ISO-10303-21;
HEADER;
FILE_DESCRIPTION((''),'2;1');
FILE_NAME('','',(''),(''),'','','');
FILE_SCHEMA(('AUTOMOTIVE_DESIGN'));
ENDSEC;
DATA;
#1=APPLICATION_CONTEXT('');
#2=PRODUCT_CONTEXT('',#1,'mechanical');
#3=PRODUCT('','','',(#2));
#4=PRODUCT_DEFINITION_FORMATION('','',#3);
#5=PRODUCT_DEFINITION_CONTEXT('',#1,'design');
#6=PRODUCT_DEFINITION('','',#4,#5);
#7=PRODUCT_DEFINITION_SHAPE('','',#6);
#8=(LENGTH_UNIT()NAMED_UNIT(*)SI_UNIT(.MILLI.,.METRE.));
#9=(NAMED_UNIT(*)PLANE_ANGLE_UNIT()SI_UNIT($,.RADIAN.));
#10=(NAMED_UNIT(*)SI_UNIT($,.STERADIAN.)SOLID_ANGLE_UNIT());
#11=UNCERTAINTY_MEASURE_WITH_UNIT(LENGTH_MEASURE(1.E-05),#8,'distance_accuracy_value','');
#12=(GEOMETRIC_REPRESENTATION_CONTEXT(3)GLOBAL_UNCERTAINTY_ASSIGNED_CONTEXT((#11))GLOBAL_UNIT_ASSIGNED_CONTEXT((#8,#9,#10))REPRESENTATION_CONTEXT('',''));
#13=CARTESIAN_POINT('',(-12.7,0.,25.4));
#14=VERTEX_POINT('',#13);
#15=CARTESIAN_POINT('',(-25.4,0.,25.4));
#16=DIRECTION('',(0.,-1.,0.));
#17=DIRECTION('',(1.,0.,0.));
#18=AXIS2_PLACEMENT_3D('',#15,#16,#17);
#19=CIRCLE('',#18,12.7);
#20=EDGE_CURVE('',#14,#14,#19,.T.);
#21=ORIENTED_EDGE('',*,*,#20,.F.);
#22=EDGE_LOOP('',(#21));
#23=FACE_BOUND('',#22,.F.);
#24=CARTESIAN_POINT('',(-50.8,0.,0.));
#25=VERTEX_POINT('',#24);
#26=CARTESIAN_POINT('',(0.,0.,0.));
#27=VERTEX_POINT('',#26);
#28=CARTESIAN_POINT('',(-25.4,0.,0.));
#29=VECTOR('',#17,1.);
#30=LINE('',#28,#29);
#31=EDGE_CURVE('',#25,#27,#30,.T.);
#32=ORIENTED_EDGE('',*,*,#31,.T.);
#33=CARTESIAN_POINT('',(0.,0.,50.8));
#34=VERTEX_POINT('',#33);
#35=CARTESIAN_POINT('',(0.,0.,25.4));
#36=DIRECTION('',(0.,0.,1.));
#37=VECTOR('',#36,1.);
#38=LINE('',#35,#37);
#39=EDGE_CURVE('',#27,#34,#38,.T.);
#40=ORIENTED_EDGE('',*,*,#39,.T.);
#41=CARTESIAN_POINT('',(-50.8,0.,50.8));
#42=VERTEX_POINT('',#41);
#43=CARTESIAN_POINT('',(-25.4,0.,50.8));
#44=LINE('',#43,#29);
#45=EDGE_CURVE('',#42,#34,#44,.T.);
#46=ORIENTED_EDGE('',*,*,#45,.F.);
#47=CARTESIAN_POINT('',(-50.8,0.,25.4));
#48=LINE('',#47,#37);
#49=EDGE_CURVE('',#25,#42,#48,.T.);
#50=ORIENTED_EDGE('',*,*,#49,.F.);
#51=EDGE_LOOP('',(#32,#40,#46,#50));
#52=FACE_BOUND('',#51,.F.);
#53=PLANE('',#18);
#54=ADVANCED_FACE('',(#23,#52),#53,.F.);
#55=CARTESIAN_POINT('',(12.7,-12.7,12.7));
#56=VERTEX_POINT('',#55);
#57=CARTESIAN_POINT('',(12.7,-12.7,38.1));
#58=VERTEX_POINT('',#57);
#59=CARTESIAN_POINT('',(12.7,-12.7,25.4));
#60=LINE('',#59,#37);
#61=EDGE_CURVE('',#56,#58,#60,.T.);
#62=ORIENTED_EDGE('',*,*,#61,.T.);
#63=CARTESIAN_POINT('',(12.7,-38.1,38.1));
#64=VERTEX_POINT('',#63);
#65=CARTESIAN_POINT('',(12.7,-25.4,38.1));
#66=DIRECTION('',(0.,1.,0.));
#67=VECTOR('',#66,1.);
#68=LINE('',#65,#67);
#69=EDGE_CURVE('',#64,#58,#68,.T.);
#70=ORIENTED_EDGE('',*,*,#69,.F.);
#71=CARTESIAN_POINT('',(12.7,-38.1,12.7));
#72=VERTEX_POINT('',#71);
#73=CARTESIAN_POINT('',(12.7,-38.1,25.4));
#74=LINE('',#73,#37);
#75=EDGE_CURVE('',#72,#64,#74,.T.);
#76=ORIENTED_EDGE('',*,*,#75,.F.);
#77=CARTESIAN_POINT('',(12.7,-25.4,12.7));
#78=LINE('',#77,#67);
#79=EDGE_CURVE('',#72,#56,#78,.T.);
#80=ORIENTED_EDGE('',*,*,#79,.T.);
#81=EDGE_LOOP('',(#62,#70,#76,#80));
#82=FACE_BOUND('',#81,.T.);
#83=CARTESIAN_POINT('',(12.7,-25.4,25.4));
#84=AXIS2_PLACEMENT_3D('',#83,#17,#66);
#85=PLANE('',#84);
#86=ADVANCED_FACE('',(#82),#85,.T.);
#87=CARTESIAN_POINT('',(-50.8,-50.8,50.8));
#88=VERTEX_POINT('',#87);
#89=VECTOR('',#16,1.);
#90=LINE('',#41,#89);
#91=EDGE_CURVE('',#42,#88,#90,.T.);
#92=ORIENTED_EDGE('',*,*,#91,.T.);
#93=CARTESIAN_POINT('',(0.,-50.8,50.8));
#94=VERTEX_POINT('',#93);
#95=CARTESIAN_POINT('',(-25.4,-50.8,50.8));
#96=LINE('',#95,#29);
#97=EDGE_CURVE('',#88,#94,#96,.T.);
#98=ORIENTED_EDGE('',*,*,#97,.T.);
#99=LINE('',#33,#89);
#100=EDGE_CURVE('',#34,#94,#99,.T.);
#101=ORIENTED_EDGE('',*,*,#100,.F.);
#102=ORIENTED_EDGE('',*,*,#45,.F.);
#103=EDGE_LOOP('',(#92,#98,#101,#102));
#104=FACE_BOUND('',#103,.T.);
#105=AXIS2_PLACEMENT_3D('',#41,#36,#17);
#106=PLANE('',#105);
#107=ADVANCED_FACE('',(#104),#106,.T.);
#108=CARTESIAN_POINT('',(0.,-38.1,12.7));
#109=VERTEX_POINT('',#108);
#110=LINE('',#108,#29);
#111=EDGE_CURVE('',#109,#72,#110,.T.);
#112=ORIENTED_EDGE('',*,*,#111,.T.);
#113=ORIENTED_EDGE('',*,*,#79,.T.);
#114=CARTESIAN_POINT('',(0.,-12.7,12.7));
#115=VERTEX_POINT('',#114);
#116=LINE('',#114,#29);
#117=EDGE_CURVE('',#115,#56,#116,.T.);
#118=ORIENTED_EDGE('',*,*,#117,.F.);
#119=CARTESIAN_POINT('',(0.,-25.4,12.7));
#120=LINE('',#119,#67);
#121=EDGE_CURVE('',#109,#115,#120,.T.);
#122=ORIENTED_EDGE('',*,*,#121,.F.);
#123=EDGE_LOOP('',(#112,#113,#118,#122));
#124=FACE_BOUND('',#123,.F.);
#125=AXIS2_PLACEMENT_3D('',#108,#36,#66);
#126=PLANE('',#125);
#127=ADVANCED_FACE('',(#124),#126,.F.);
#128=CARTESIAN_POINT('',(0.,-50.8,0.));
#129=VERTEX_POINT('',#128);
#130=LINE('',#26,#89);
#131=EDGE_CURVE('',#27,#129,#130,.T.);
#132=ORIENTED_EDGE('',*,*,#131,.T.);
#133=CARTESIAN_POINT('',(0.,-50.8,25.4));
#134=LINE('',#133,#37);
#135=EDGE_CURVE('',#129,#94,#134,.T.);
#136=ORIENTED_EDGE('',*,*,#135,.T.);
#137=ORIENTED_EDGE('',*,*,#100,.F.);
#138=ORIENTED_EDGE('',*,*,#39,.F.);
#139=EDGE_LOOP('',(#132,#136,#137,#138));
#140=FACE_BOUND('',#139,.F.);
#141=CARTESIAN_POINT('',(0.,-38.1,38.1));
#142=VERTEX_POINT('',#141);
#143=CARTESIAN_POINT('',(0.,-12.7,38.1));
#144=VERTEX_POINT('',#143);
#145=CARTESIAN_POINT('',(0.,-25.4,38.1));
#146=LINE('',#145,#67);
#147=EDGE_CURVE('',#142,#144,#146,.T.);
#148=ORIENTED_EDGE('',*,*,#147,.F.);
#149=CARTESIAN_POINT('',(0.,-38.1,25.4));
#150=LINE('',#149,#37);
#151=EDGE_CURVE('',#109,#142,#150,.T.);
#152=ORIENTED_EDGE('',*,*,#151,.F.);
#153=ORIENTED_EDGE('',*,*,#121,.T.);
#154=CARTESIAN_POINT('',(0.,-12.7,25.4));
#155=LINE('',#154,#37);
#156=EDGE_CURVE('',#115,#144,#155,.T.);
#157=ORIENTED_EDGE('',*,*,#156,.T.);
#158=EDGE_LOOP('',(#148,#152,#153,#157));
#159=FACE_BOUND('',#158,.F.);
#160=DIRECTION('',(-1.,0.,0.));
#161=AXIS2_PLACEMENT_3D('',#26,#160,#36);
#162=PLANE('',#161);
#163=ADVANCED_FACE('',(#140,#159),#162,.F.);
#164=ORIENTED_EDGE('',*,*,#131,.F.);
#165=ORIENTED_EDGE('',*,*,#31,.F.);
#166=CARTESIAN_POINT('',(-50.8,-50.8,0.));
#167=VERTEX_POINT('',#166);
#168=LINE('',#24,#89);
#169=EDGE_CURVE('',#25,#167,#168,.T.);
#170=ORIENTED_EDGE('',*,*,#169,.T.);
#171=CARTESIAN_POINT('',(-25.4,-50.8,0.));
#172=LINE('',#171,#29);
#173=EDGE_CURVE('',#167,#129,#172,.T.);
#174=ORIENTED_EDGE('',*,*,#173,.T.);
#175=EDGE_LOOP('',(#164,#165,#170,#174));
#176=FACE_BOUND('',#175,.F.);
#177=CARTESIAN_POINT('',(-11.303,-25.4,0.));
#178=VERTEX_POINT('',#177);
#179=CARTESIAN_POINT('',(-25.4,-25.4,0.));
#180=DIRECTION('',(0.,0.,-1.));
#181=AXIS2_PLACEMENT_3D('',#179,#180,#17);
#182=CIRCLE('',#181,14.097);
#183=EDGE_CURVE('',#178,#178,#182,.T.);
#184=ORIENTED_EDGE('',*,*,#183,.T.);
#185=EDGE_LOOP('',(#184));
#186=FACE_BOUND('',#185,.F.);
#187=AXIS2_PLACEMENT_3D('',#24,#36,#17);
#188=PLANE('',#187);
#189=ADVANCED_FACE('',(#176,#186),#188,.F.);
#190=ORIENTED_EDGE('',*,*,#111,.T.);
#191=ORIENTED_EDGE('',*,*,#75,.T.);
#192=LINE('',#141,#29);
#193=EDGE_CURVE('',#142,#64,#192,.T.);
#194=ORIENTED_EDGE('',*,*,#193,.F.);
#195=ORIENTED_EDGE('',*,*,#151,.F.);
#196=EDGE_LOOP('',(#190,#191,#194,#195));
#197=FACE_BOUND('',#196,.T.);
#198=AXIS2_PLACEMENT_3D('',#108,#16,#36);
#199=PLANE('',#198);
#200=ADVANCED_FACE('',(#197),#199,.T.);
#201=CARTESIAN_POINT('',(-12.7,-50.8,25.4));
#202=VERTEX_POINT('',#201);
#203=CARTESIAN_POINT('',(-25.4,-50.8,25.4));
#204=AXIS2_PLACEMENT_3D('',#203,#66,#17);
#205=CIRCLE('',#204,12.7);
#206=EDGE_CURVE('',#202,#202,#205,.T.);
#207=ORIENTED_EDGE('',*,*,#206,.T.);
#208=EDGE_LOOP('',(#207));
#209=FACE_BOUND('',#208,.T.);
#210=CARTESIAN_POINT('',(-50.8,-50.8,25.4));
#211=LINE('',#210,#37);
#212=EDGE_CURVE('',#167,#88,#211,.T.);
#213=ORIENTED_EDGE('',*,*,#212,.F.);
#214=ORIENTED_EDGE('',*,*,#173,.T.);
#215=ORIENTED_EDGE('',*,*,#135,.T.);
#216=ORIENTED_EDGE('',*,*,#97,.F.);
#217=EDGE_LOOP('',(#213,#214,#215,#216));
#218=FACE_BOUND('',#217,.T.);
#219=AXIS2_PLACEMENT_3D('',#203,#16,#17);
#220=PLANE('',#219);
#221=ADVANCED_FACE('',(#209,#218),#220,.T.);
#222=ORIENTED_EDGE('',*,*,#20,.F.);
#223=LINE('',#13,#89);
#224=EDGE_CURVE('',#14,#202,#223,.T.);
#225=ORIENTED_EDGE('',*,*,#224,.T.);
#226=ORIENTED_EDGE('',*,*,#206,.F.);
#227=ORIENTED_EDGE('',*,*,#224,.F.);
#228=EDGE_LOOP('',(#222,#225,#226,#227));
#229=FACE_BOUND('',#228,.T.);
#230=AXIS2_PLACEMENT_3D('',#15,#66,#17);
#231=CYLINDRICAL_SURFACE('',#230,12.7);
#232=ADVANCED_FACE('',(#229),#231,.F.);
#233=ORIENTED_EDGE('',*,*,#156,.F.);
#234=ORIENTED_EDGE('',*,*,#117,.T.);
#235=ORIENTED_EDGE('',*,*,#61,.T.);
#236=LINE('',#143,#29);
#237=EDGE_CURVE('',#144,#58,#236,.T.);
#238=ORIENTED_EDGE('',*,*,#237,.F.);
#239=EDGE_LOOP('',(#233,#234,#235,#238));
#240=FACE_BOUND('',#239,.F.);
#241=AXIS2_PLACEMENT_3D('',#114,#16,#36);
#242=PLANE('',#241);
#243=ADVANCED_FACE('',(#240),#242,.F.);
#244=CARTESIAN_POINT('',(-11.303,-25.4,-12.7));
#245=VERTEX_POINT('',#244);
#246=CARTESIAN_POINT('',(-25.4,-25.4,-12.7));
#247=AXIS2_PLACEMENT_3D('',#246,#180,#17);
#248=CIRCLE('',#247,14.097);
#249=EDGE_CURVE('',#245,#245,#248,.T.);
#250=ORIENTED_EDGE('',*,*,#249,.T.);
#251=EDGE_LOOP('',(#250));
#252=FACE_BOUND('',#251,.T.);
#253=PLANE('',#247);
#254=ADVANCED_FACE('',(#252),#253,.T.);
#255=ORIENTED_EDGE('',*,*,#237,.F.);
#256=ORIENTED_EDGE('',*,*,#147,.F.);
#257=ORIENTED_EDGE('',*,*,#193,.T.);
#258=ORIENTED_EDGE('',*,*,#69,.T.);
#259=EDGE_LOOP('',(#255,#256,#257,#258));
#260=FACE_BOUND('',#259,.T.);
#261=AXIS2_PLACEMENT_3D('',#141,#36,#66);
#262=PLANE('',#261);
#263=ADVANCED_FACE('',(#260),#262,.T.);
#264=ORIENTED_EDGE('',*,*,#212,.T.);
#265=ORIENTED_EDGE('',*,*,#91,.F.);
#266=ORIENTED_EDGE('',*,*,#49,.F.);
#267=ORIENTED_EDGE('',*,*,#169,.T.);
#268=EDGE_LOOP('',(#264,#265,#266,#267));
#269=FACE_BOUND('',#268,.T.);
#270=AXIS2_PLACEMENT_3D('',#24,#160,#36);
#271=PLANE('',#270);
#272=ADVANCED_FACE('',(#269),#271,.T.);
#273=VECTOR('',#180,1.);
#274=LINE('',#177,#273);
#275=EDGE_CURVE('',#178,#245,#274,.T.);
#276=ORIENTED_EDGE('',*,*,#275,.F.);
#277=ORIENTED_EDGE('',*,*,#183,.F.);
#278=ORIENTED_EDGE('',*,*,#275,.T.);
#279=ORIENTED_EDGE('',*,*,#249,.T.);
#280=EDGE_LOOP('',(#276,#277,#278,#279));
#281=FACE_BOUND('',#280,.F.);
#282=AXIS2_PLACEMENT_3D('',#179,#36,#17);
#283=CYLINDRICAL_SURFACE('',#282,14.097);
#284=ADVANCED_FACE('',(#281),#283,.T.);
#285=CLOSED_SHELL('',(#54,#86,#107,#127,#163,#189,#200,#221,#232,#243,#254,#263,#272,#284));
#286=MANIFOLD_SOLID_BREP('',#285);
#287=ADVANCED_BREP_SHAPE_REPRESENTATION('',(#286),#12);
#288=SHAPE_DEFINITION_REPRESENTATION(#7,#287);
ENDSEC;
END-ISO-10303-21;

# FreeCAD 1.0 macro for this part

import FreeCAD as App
import Part
import Sketcher
from FreeCAD import Vector
Q = App.Units.Quantity


def add_polygon(sketch, points):
    """Adds a closed chain of lines whose ends are joined by coincident constraints."""
    first, n = sketch.GeometryCount, len(points)
    for a, b in zip(points, points[1:] + points[:1]):
        sketch.addGeometry(Part.LineSegment(App.Vector(*a, 0), App.Vector(*b, 0)), False)
    for i in range(n):
        sketch.addConstraint(Sketcher.Constraint("Coincident", first + i, 2, first + (i + 1) % n, 1))

doc = App.newDocument("Part")
body = doc.addObject("PartDesign::Body", "Body")

sketch1 = body.newObject("Sketcher::SketchObject", "Sketch")
sketch1.AttachmentSupport = (doc.getObject("XZ_Plane"), [""])
sketch1.MapMode = "FlatFace"
add_polygon(sketch1, [(-50.8, 50.8), (-50.8, 0), (0, 0), (0, 50.8)])
sketch1.addConstraint(Sketcher.Constraint("Vertical", 0))
sketch1.addConstraint(Sketcher.Constraint("Horizontal", 1))
sketch1.addConstraint(Sketcher.Constraint("Vertical", 2))
sketch1.addConstraint(Sketcher.Constraint("Horizontal", 3))
sketch1.addConstraint(Sketcher.Constraint("Coincident", 1, 2, -1, 1))
sketch1.addConstraint(Sketcher.Constraint("Equal", 3, 0))
sketch1.addConstraint(Sketcher.Constraint("DistanceX", 1, 1, 1, 2, Q("2 in")))
pad1 = body.newObject("PartDesign::Pad", "Pad")
pad1.Profile = sketch1
pad1.Length = Q("2 in")

sketch2 = body.newObject("Sketcher::SketchObject", "Sketch001")
sketch2.AttachmentSupport = (doc.getObject("XZ_Plane"), [""])
sketch2.MapMode = "FlatFace"
sketch2.addGeometry(Part.Circle(Vector(-25.4, 25.4, 0), Vector(0, 0, 1), 12.7), False)
sketch2.addConstraint(Sketcher.Constraint("Diameter", 0, Q("1 in")))
sketch2.addConstraint(Sketcher.Constraint("DistanceX", 0, 3, -1, 1, Q("1 in")))
sketch2.addConstraint(Sketcher.Constraint("DistanceY", -1, 1, 0, 3, Q("1 in")))
pocket1 = body.newObject("PartDesign::Pocket", "Pocket")
pocket1.Profile = sketch2
pocket1.Length = Q("2.02 in")
pocket1.Reversed = True

sketch3 = body.newObject("Sketcher::SketchObject", "Sketch002")
sketch3.AttachmentSupport = (doc.getObject("YZ_Plane"), [""])
sketch3.MapMode = "FlatFace"
add_polygon(sketch3, [(-38.1, 38.1), (-38.1, 12.7), (-12.7, 12.7), (-12.7, 38.1)])
sketch3.addConstraint(Sketcher.Constraint("Vertical", 0))
sketch3.addConstraint(Sketcher.Constraint("Horizontal", 1))
sketch3.addConstraint(Sketcher.Constraint("Vertical", 2))
sketch3.addConstraint(Sketcher.Constraint("Horizontal", 3))
sketch3.addConstraint(Sketcher.Constraint("Equal", 3, 0))
sketch3.addConstraint(Sketcher.Constraint("DistanceX", 1, 1, 1, 2, Q("1 in")))
sketch3.addConstraint(Sketcher.Constraint("DistanceX", 0, 2, -1, 1, Q("1.5 in")))
sketch3.addConstraint(Sketcher.Constraint("DistanceY", -1, 1, 0, 2, Q("0.5 in")))
pad2 = body.newObject("PartDesign::Pad", "Pad001")
pad2.Profile = sketch3
pad2.Length = Q("0.5 in")

sketch4 = body.newObject("Sketcher::SketchObject", "Sketch003")
sketch4.AttachmentSupport = (doc.getObject("XY_Plane"), [""])
sketch4.MapMode = "FlatFace"
sketch4.addGeometry(Part.Circle(Vector(-25.4, -25.4, 0), Vector(0, 0, 1), 14.097), False)
sketch4.addConstraint(Sketcher.Constraint("Diameter", 0, Q("1.11 in")))
sketch4.addConstraint(Sketcher.Constraint("DistanceX", 0, 3, -1, 1, Q("1 in")))
sketch4.addConstraint(Sketcher.Constraint("DistanceY", 0, 3, -1, 1, Q("1 in")))
pad3 = body.newObject("PartDesign::Pad", "Pad002")
pad3.Profile = sketch4
pad3.Length = Q("0.5 in")
pad3.Reversed = True

doc.recompute()
